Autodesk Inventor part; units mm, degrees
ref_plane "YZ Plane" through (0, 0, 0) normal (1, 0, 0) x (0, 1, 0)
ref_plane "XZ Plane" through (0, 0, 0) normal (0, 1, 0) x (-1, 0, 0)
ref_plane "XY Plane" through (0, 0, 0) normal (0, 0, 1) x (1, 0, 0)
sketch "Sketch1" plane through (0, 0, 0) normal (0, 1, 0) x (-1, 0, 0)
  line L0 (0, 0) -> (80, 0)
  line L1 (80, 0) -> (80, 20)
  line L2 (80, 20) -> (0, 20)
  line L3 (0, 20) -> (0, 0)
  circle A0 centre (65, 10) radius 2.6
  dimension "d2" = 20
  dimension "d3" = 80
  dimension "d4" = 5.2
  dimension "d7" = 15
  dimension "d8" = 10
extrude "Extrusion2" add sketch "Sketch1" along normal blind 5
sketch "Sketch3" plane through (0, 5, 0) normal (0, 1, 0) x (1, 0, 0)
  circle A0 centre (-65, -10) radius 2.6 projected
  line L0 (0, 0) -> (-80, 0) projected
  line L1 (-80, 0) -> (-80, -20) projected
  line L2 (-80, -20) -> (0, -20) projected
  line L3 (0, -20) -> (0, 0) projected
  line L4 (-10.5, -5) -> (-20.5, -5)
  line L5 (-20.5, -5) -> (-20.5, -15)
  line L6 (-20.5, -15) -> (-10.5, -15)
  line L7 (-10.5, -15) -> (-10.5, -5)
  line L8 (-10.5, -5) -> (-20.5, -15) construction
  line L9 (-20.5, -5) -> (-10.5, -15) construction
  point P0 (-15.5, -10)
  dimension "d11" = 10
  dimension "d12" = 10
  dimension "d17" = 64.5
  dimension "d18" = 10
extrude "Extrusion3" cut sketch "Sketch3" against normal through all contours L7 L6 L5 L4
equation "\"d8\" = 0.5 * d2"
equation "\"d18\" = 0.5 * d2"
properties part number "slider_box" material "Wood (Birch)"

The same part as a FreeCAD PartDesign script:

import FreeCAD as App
import Part
import Sketcher
Q = App.Units.Quantity

doc = App.newDocument("Part")
body = doc.addObject("PartDesign::Body", "Body")

# Sketch on XZ plane
sketch1 = body.newObject("Sketcher::SketchObject", "Sketch")
sketch1.AttachmentSupport = (doc.getObject("XZ_Plane"), [""])
sketch1.MapMode = "FlatFace"
sketch1.addGeometry(Part.LineSegment(App.Vector(0, 20, 0), App.Vector(0, 0, 0)), False)
sketch1.addGeometry(Part.LineSegment(App.Vector(0, 0, 0), App.Vector(-80, 0, 0)), False)
sketch1.addGeometry(Part.LineSegment(App.Vector(-80, 0, 0), App.Vector(-80, 20, 0)), False)
sketch1.addGeometry(Part.LineSegment(App.Vector(-80, 20, 0), App.Vector(0, 20, 0)), False)
sketch1.addGeometry(Part.Circle(App.Vector(-65, 10, 0), App.Vector(0, 0, 1), 2.6), False)
sketch1.addConstraint(Sketcher.Constraint("Coincident", 0, 2, 1, 1))
sketch1.addConstraint(Sketcher.Constraint("Coincident", 1, 2, 2, 1))
sketch1.addConstraint(Sketcher.Constraint("Coincident", 2, 2, 3, 1))
sketch1.addConstraint(Sketcher.Constraint("Coincident", 3, 2, 0, 1))
sketch1.addConstraint(Sketcher.Constraint("Vertical", 0))
sketch1.addConstraint(Sketcher.Constraint("Horizontal", 1))
sketch1.addConstraint(Sketcher.Constraint("Vertical", 2))
sketch1.addConstraint(Sketcher.Constraint("Horizontal", 3))
sketch1.addConstraint(Sketcher.Constraint("Coincident", 0, 2, -1, 1))
sketch1.addConstraint(Sketcher.Constraint("Diameter", 4, Q("5.2 mm")))
sketch1.addConstraint(Sketcher.Constraint("DistanceX", 1, 2, 1, 1, Q("80 mm")))
sketch1.addConstraint(Sketcher.Constraint("DistanceY", 0, 2, 0, 1, Q("20 mm")))
sketch1.addConstraint(Sketcher.Constraint("DistanceY", -1, 1, 4, 3, Q("10 mm")))
sketch1.addConstraint(Sketcher.Constraint("DistanceX", 1, 2, 4, 3, Q("15 mm")))
pad1 = body.newObject("PartDesign::Pad", "Pad")
pad1.Profile = sketch1
pad1.Length = 5
pad1.Reversed = True

# Sketch on XZ plane
sketch2 = body.newObject("Sketcher::SketchObject", "Sketch001")
sketch2.AttachmentSupport = (doc.getObject("XZ_Plane"), [""])
sketch2.MapMode = "FlatFace"
sketch2.AttachmentOffset = App.Placement(App.Vector(0, 0, -5), App.Rotation())
sketch2.addGeometry(Part.LineSegment(App.Vector(-10, 15, 0), App.Vector(-10, 5, 0)), False)
sketch2.addGeometry(Part.LineSegment(App.Vector(-10, 5, 0), App.Vector(-20, 5, 0)), False)
sketch2.addGeometry(Part.LineSegment(App.Vector(-20, 5, 0), App.Vector(-20, 15, 0)), False)
sketch2.addGeometry(Part.LineSegment(App.Vector(-20, 15, 0), App.Vector(-10, 15, 0)), False)
sketch2.addConstraint(Sketcher.Constraint("Coincident", 0, 2, 1, 1))
sketch2.addConstraint(Sketcher.Constraint("Coincident", 1, 2, 2, 1))
sketch2.addConstraint(Sketcher.Constraint("Coincident", 2, 2, 3, 1))
sketch2.addConstraint(Sketcher.Constraint("Coincident", 3, 2, 0, 1))
sketch2.addConstraint(Sketcher.Constraint("Vertical", 0))
sketch2.addConstraint(Sketcher.Constraint("Horizontal", 1))
sketch2.addConstraint(Sketcher.Constraint("Vertical", 2))
sketch2.addConstraint(Sketcher.Constraint("Horizontal", 3))
sketch2.addConstraint(Sketcher.Constraint("Equal", 3, 0))
sketch2.addConstraint(Sketcher.Constraint("DistanceX", 1, 2, 1, 1, Q("10 mm")))
sketch2.addConstraint(Sketcher.Constraint("DistanceY", -1, 1, 0, 2, Q("5 mm")))
sketch2.addConstraint(Sketcher.Constraint("DistanceX", 0, 2, -1, 1, Q("10.5 mm")))
pocket1 = body.newObject("PartDesign::Pocket", "Pocket")
pocket1.Profile = sketch2
pocket1.Type = "ThroughAll"
pocket1.Reversed = True

doc.recompute()
